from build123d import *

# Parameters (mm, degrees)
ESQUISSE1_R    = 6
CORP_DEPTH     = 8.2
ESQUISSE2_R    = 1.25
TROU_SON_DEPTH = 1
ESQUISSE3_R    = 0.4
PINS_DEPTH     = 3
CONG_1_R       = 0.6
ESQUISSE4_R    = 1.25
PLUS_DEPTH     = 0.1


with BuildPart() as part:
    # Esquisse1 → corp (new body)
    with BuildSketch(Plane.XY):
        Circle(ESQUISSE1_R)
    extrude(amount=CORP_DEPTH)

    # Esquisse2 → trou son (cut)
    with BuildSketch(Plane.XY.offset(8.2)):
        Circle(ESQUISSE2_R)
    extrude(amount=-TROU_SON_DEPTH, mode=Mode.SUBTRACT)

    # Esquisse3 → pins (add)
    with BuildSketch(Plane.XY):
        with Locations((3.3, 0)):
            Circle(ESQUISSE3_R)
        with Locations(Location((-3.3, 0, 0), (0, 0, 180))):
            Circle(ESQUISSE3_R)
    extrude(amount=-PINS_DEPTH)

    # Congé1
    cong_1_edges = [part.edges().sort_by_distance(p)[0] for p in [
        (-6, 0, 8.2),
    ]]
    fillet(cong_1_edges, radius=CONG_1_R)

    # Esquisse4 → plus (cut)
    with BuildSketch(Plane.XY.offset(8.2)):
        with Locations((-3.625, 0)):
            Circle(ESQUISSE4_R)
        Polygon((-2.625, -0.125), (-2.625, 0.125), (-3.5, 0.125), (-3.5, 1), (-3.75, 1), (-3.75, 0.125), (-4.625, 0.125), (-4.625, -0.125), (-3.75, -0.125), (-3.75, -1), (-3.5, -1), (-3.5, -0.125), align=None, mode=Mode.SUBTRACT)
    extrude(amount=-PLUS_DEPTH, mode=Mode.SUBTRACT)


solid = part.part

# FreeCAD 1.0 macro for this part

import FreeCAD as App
import Part
import Sketcher

V = App.Vector


def edges_at(feature, points):
    """Names of the edges that pass closest to the given points."""
    edges = feature.Shape.Edges
    near = lambda p: min(range(len(edges)), key=lambda i: edges[i].distToShape(Part.Vertex(*p))[0])
    return sorted({f"Edge{near(p) + 1}" for p in points})

doc = App.newDocument("Part")
params = doc.addObject("Spreadsheet::Sheet", "Params")
for row, (alias, value) in enumerate([
    ("sketch1_diameter", "12 mm"),
    ("pad1_length", "8.2 mm"),
    ("sketch2_diameter", "2.5 mm"),
    ("pocket1_length", "1 mm"),
    ("sketch3_diameter", "0.8 mm"),
    ("pad2_length", "3 mm"),
    ("fillet_radius", "0.6 mm"),
    ("sketch4_diameter", "2.5 mm"),
    ("sketch4_width", "0.25 mm"),
    ("pocket2_length", "0.1 mm"),
], start=1):
    params.set(f"A{row}", alias)
    params.set(f"B{row}", "=" + value)
    params.setAlias(f"B{row}", alias)

body = doc.addObject("PartDesign::Body", "Body")

# Sketch on XY plane
sketch1 = body.newObject("Sketcher::SketchObject", "Sketch")
sketch1.AttachmentSupport = (doc.getObject("XY_Plane"), [""])
sketch1.MapMode = "FlatFace"
sketch1.addGeometry(Part.Circle(V(0, 0, 0), V(0, 0, 1), 6), False)
sketch1.addConstraint([
    Sketcher.Constraint("Coincident", 0, 3, -1, 1),
    Sketcher.Constraint("Diameter", 0, 12.0),
])
sketch1.setExpression("Constraints[1]", "Params.sketch1_diameter")
pad1 = body.newObject("PartDesign::Pad", "Pad")
pad1.Profile = sketch1
pad1.setExpression("Length", "Params.pad1_length")

# Sketch on XY plane
sketch2 = body.newObject("Sketcher::SketchObject", "Sketch001")
sketch2.AttachmentSupport = (doc.getObject("XY_Plane"), [""])
sketch2.MapMode = "FlatFace"
sketch2.AttachmentOffset = App.Placement(V(0, 0, 8.2), App.Rotation())
sketch2.addGeometry(Part.Circle(V(0, 0, 0), V(0, 0, 1), 1.2), False)
sketch2.addConstraint([
    Sketcher.Constraint("Coincident", 0, 3, -1, 1),
    Sketcher.Constraint("Diameter", 0, 2.5),
])
sketch2.setExpression("Constraints[1]", "Params.sketch2_diameter")
pocket1 = body.newObject("PartDesign::Pocket", "Pocket")
pocket1.Profile = sketch2
pocket1.setExpression("Length", "Params.pocket1_length")

# Sketch on XY plane
sketch3 = body.newObject("Sketcher::SketchObject", "Sketch002")
sketch3.AttachmentSupport = (doc.getObject("XY_Plane"), [""])
sketch3.MapMode = "FlatFace"
sketch3.addGeometry([
    Part.Circle(V(3.3, 0, 0), V(0, 0, 1), 0.4),
    Part.Circle(V(-3.3, 0, 0), V(0, 0, 1), 0.4),
], False)
sketch3.addConstraint([
    Sketcher.Constraint("Equal", 0, 1),
    Sketcher.Constraint("Symmetric", 0, 3, 1, 3, -1, 1),
    Sketcher.Constraint("PointOnObject", 0, 3, -1),
    Sketcher.Constraint("Diameter", 0, 0.8),
    Sketcher.Constraint("DistanceX", -1, 1, 0, 3, 3.3),
])
sketch3.setExpression("Constraints[3]", "Params.sketch3_diameter")
pad2 = body.newObject("PartDesign::Pad", "Pad001")
pad2.Profile = sketch3
pad2.setExpression("Length", "Params.pad2_length")
pad2.Reversed = True
doc.recompute()

fillet = body.newObject("PartDesign::Fillet", "Fillet")
fillet.Base = (pad2, edges_at(pad2, [(-6, 0, 8.2)]))
fillet.setExpression("Radius", "Params.fillet_radius")

# Sketch on XY plane
sketch4 = body.newObject("Sketcher::SketchObject", "Sketch003")
sketch4.AttachmentSupport = (doc.getObject("XY_Plane"), [""])
sketch4.MapMode = "FlatFace"
sketch4.AttachmentOffset = App.Placement(V(0, 0, 8.2), App.Rotation())
sketch4.addGeometry([
    Part.Circle(V(-3.62, 0, 0), V(0, 0, 1), 1.25),  # 0
    Part.LineSegment(V(-2.62, 0.12, 0), V(-2.62, -0.12, 0)),  # 1
    Part.LineSegment(V(-2.62, -0.12, 0), V(-3.5, -0.12, 0)),  # 2
    Part.LineSegment(V(-3.5, -0.12, 0), V(-3.5, -1, 0)),  # 3
    Part.LineSegment(V(-3.5, -1, 0), V(-3.75, -1, 0)),  # 4
    Part.LineSegment(V(-3.75, -1, 0), V(-3.75, -0.12, 0)),  # 5
    Part.LineSegment(V(-3.75, -0.12, 0), V(-4.62, -0.12, 0)),  # 6
    Part.LineSegment(V(-4.62, -0.12, 0), V(-4.62, 0.12, 0)),  # 7
    Part.LineSegment(V(-4.62, 0.12, 0), V(-3.75, 0.12, 0)),  # 8
    Part.LineSegment(V(-3.75, 0.12, 0), V(-3.75, 1, 0)),  # 9
    Part.LineSegment(V(-3.75, 1, 0), V(-3.5, 1, 0)),  # 10
    Part.LineSegment(V(-3.5, 1, 0), V(-3.5, 0.12, 0)),  # 11
    Part.LineSegment(V(-3.5, 0.12, 0), V(-2.62, 0.12, 0)),  # 12
], False)
sketch4.addConstraint([
    Sketcher.Constraint("Coincident", 1, 2, 2, 1),
    Sketcher.Constraint("Coincident", 2, 2, 3, 1),
    Sketcher.Constraint("Coincident", 3, 2, 4, 1),
    Sketcher.Constraint("Coincident", 4, 2, 5, 1),
    Sketcher.Constraint("Coincident", 5, 2, 6, 1),
    Sketcher.Constraint("Coincident", 6, 2, 7, 1),
    Sketcher.Constraint("Coincident", 7, 2, 8, 1),
    Sketcher.Constraint("Coincident", 8, 2, 9, 1),
    Sketcher.Constraint("Coincident", 9, 2, 10, 1),
    Sketcher.Constraint("Coincident", 10, 2, 11, 1),
    Sketcher.Constraint("Coincident", 11, 2, 12, 1),
    Sketcher.Constraint("Coincident", 12, 2, 1, 1),
    Sketcher.Constraint("Vertical", 1),
    Sketcher.Constraint("Horizontal", 2),
    Sketcher.Constraint("Vertical", 3),
    Sketcher.Constraint("Horizontal", 4),
    Sketcher.Constraint("Vertical", 5),
    Sketcher.Constraint("Horizontal", 6),
    Sketcher.Constraint("Vertical", 7),
    Sketcher.Constraint("Horizontal", 8),
    Sketcher.Constraint("Vertical", 9),
    Sketcher.Constraint("Horizontal", 10),
    Sketcher.Constraint("Vertical", 11),
    Sketcher.Constraint("Horizontal", 12),
    Sketcher.Constraint("Symmetric", 5, 2, 8, 2, -1),
    Sketcher.Constraint("Symmetric", 3, 2, 10, 2, -1),
    Sketcher.Constraint("PointOnObject", 0, 3, -1),
    Sketcher.Constraint("Horizontal", 2, 2, 5, 2),
    Sketcher.Constraint("Horizontal", 8, 2, 11, 2),
    Sketcher.Constraint("Equal", 2, 6),
    Sketcher.Constraint("Equal", 10, 1),
    Sketcher.Constraint("Equal", 12, 3),
    Sketcher.Constraint("Diameter", 0, 2.5),
    Sketcher.Constraint("DistanceY", 3, 2, -1, 1, 1.0),
    Sketcher.Constraint("DistanceX", 0, 3, 1, 2, 1.0),
    Sketcher.Constraint("DistanceX", 4, 2, 4, 1, 0.25),
    Sketcher.Constraint("DistanceX", 2, 2, -1, 1, 3.5),
])
sketch4.setExpression("Constraints[32]", "Params.sketch4_diameter")
sketch4.setExpression("Constraints[35]", "Params.sketch4_width")
pocket2 = body.newObject("PartDesign::Pocket", "Pocket001")
pocket2.Profile = sketch4
pocket2.setExpression("Length", "Params.pocket2_length")

doc.recompute()
